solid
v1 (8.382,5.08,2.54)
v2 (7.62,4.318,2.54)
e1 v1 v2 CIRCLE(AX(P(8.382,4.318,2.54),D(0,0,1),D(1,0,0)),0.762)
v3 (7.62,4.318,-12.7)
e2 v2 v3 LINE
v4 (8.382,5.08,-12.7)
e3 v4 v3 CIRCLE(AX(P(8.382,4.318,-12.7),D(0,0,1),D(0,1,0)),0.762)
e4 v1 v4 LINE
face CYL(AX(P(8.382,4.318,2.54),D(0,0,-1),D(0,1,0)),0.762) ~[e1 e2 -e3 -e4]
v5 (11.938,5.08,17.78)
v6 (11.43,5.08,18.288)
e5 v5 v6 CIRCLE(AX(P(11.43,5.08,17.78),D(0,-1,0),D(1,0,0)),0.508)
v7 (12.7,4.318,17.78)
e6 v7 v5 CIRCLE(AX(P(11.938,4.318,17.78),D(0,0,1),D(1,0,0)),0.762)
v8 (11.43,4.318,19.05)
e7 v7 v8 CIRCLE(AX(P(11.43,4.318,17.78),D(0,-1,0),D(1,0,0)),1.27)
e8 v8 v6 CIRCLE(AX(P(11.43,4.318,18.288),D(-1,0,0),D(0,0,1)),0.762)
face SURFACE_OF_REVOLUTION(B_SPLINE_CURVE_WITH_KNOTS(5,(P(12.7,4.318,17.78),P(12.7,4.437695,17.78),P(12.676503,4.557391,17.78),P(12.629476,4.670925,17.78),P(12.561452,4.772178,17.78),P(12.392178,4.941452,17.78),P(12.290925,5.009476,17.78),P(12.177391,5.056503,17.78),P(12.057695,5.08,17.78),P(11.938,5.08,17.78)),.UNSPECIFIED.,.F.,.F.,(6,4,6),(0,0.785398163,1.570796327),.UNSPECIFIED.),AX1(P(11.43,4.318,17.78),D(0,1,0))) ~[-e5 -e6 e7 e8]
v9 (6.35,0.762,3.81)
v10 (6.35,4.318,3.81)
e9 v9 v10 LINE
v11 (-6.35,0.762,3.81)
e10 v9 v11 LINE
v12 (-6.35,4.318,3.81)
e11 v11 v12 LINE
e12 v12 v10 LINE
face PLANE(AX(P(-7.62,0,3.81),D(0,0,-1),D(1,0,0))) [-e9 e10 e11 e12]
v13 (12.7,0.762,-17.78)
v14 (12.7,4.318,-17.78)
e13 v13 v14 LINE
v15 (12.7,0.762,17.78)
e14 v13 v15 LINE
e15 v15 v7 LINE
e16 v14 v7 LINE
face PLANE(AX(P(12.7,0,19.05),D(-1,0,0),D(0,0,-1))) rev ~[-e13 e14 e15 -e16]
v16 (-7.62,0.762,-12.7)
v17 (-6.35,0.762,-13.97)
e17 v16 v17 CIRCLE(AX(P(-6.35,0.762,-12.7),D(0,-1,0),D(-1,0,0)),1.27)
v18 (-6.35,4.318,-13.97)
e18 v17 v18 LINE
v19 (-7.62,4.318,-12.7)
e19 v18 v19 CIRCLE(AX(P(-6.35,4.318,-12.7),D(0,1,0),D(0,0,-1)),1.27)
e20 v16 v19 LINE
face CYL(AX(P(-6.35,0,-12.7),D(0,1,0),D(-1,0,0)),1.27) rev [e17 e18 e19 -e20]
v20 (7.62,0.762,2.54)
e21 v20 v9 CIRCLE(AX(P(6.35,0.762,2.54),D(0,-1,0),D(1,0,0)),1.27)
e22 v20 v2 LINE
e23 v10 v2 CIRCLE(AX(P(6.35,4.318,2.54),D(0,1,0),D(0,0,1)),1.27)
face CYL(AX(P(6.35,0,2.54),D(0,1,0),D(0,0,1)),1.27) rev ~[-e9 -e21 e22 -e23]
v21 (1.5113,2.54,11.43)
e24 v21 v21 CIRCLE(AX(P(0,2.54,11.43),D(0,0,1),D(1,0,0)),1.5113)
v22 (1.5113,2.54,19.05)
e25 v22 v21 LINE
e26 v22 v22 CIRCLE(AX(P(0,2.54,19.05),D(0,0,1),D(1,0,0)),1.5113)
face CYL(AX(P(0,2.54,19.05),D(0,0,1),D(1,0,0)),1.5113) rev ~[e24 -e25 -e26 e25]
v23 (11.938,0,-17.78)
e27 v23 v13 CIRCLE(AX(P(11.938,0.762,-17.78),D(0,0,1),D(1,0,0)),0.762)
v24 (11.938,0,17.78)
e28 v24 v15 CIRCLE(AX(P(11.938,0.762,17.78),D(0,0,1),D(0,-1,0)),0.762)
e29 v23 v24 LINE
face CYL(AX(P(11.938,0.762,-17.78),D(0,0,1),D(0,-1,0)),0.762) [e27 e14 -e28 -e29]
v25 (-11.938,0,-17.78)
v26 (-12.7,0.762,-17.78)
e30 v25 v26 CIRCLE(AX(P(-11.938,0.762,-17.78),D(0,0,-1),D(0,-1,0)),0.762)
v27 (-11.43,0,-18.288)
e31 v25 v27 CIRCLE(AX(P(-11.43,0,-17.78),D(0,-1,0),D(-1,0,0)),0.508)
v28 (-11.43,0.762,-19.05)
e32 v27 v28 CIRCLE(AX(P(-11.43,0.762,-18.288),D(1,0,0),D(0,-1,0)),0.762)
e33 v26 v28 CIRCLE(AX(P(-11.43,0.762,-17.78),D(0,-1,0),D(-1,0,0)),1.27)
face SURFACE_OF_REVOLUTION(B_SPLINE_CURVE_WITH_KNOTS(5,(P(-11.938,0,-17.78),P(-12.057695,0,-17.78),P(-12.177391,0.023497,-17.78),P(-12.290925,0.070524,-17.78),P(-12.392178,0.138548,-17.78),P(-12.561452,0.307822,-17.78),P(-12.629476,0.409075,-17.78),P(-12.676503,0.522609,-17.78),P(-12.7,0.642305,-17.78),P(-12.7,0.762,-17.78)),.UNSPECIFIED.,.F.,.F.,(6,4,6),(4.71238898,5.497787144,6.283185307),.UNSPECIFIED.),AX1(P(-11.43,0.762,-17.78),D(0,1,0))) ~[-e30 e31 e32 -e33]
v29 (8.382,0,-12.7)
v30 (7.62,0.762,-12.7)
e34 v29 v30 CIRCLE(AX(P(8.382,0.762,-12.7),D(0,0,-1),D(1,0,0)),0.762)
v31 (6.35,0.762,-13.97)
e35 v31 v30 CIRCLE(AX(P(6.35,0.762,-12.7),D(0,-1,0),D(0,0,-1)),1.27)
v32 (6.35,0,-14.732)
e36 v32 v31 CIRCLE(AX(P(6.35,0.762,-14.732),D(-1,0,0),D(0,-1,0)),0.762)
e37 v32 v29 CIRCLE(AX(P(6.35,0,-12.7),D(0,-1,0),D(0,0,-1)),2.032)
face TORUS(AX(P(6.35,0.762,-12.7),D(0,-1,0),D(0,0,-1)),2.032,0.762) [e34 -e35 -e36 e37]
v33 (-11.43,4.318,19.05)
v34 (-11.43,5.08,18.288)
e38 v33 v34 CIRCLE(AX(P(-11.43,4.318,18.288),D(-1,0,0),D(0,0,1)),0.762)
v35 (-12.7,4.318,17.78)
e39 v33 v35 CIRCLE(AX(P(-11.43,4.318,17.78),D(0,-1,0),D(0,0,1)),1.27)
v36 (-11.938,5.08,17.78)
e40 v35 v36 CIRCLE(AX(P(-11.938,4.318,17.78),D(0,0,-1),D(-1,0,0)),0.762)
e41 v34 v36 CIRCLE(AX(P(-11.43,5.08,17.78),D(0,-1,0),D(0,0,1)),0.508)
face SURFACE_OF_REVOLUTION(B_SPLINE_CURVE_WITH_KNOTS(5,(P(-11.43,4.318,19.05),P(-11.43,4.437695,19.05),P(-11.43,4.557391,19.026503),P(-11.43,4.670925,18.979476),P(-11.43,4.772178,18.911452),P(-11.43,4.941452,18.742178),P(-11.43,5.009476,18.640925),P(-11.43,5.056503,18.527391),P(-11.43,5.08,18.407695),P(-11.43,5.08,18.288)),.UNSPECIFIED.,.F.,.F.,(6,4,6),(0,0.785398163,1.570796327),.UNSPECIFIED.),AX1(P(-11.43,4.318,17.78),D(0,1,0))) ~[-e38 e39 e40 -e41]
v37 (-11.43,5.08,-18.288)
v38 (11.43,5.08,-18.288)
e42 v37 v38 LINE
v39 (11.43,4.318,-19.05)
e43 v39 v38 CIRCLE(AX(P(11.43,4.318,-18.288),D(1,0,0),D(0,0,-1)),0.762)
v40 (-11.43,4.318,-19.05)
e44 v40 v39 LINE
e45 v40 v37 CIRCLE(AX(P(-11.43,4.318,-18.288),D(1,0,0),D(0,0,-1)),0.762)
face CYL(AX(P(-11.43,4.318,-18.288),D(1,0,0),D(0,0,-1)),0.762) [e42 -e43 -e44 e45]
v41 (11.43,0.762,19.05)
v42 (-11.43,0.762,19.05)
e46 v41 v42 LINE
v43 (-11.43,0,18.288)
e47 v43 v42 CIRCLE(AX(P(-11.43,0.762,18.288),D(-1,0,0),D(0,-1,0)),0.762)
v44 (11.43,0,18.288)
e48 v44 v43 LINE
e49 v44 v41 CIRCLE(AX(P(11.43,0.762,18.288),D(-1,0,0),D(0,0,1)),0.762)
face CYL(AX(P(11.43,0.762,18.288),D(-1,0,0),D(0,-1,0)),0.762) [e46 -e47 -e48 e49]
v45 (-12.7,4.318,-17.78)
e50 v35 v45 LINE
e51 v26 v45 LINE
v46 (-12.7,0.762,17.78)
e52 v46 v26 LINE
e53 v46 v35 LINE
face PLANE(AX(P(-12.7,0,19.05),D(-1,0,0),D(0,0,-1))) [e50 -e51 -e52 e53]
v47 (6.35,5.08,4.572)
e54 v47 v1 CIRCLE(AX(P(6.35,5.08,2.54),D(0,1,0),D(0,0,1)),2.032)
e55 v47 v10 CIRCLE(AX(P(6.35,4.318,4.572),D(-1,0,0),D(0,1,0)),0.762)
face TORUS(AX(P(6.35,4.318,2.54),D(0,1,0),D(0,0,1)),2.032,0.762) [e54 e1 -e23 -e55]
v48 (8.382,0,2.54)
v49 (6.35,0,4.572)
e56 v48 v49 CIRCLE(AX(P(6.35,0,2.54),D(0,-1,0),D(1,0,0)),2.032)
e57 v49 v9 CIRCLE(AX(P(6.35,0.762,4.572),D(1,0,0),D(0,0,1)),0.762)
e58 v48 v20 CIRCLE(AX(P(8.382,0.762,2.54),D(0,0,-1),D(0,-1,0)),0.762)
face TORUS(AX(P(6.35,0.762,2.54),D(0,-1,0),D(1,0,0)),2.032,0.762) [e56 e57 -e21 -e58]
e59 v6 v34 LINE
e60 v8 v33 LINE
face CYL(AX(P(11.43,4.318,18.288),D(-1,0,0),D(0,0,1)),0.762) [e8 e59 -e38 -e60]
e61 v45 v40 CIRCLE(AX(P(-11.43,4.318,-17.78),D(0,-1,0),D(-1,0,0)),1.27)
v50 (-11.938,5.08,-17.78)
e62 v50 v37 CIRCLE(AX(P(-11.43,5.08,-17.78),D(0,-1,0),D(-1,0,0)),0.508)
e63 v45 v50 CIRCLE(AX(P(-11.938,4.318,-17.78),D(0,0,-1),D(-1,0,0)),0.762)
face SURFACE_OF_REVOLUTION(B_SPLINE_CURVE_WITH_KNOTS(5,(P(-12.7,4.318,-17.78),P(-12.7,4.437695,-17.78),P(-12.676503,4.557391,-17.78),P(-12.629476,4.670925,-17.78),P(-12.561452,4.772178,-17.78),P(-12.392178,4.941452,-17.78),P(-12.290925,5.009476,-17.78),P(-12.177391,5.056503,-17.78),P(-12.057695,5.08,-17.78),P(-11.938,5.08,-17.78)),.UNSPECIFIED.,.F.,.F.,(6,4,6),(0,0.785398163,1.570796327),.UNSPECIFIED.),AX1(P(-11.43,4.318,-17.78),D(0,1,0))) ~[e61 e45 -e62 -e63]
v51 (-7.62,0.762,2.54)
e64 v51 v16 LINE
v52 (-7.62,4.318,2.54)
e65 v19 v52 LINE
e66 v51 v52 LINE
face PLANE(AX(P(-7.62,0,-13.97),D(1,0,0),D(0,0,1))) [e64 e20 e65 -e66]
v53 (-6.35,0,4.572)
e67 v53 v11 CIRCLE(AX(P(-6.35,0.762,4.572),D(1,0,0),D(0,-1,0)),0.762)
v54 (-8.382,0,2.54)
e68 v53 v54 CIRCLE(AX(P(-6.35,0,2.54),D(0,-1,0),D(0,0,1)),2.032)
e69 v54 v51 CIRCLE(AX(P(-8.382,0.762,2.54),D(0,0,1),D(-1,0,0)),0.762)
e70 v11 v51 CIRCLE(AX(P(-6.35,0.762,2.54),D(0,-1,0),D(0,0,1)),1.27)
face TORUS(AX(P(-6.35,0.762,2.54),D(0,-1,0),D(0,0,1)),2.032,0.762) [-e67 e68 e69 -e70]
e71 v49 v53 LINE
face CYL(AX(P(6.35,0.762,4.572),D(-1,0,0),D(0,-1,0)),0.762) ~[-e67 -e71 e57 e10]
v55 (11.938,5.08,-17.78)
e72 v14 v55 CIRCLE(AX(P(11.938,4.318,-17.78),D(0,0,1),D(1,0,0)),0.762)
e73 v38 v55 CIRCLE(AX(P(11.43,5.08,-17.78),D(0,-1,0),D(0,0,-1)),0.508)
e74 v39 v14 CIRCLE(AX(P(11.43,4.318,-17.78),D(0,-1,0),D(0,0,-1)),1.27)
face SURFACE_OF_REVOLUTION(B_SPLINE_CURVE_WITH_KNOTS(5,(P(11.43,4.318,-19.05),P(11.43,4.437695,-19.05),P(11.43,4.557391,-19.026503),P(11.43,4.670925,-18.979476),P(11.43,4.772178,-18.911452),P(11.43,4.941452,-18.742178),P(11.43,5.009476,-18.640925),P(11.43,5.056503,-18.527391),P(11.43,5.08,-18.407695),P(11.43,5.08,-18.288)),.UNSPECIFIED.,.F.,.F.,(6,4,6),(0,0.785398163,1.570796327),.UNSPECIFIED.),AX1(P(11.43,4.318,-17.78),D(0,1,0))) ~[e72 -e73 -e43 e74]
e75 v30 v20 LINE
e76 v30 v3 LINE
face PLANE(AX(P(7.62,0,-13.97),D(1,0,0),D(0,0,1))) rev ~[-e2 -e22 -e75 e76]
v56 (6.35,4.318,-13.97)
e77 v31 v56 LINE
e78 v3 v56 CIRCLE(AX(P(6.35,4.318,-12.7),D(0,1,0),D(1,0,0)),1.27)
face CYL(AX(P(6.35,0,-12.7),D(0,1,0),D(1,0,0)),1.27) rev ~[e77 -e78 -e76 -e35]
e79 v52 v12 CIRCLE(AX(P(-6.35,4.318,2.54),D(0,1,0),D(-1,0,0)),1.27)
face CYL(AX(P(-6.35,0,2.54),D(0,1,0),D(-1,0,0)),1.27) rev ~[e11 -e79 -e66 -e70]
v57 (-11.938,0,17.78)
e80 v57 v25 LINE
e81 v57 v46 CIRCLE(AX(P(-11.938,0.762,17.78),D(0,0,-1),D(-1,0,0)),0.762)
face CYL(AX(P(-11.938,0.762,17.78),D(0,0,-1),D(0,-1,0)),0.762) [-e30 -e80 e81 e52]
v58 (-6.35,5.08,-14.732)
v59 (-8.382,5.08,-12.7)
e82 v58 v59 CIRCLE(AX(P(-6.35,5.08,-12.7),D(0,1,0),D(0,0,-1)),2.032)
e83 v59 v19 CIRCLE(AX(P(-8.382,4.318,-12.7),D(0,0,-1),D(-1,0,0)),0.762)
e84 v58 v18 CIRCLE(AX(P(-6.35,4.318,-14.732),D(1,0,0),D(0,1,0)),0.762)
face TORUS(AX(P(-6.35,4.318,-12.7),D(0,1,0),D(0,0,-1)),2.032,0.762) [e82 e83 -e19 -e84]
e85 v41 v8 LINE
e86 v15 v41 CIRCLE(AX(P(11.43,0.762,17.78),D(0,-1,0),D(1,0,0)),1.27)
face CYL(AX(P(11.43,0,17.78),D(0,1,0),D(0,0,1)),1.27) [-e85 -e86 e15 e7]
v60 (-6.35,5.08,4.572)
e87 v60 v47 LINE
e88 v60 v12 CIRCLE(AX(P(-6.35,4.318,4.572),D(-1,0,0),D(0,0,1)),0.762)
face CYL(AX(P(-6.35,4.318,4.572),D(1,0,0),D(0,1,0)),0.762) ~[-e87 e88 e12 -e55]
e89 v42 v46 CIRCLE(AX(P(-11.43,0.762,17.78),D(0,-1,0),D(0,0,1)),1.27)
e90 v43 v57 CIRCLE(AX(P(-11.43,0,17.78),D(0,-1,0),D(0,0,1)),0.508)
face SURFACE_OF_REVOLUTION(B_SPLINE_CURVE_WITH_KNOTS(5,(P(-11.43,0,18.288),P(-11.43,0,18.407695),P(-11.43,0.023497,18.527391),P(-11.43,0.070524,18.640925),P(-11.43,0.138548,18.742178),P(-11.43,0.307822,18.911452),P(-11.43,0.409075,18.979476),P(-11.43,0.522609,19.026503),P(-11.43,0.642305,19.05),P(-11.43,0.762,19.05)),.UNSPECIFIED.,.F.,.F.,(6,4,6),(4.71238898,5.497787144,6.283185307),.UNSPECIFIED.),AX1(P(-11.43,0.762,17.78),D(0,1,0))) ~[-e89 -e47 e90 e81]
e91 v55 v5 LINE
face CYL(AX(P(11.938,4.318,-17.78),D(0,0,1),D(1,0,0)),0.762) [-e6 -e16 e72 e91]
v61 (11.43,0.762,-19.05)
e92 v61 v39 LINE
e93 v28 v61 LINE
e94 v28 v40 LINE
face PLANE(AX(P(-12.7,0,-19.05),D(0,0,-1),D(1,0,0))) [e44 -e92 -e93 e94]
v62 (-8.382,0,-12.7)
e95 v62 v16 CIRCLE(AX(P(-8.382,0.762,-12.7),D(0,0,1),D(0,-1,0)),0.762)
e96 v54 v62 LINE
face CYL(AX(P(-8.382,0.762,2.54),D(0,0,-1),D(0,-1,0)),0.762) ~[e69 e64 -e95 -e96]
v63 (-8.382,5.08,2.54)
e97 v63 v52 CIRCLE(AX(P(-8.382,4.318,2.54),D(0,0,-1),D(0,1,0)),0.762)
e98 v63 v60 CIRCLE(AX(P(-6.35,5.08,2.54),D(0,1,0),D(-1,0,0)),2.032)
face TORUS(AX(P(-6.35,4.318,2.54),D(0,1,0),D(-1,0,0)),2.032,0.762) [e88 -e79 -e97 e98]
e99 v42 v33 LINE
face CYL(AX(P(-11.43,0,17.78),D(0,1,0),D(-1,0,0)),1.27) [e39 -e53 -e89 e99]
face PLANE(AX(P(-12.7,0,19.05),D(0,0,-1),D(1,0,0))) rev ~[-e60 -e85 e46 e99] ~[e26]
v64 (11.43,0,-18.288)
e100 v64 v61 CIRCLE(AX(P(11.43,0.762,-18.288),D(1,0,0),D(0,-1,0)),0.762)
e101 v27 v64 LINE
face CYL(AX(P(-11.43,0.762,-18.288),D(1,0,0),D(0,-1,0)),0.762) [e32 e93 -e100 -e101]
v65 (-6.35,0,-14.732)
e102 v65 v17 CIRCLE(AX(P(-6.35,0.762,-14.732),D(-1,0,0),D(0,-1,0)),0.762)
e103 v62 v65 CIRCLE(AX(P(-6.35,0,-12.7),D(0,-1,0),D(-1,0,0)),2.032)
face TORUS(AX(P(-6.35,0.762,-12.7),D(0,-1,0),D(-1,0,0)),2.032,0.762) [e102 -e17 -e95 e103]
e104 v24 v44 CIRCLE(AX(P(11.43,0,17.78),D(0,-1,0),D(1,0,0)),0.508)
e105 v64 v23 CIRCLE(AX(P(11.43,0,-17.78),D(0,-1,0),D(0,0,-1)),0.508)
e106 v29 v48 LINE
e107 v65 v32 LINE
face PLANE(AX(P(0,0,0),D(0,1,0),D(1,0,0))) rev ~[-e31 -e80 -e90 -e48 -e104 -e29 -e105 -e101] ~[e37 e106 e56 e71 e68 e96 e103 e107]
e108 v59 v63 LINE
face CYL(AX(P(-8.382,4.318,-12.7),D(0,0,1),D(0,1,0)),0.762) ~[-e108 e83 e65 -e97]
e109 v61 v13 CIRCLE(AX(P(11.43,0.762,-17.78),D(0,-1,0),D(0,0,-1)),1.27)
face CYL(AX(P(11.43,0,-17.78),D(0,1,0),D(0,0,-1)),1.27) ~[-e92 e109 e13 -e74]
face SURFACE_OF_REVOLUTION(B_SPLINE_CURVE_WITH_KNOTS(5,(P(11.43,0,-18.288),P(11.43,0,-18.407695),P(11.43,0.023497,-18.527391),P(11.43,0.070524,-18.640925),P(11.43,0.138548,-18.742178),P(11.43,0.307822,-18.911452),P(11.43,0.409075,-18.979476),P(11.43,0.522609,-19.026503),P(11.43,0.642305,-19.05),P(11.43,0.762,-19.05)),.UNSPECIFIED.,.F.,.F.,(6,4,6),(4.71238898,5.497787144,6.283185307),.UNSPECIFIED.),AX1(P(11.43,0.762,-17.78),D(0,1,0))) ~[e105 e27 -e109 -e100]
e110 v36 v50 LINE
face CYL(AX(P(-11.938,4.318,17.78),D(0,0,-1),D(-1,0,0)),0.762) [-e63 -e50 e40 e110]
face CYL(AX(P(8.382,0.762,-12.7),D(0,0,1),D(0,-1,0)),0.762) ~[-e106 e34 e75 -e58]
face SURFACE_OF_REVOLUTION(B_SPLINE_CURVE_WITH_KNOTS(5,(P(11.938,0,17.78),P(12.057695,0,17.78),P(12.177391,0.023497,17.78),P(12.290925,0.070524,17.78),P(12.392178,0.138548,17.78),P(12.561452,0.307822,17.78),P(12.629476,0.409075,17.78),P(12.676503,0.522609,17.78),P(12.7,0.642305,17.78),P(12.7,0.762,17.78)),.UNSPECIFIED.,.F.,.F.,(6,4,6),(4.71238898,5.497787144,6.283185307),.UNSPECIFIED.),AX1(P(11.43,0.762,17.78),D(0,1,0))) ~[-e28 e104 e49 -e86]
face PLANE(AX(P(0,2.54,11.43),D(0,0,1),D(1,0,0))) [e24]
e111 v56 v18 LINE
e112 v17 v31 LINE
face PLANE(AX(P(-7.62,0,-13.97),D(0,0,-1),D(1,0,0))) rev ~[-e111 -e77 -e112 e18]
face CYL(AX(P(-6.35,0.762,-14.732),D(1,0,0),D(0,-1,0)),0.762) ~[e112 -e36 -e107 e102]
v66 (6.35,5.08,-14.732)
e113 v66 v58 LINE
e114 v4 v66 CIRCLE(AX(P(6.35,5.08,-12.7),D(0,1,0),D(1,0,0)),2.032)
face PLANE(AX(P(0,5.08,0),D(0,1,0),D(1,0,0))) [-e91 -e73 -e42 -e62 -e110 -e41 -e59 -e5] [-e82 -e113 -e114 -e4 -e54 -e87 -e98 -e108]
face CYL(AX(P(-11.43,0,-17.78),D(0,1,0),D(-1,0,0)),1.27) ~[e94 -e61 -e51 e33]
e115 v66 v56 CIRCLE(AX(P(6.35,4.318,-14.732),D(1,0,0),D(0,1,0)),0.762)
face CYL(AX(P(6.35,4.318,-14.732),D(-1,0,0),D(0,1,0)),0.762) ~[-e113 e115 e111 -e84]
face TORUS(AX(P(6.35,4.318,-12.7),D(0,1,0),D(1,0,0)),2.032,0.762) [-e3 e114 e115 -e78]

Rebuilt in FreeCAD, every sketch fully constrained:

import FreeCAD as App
import Part
import Sketcher

V = App.Vector
Q = App.Units.Quantity


def edges_at(feature, points):
    """Names of the edges that pass closest to the given points."""
    edges = feature.Shape.Edges
    near = lambda p: min(range(len(edges)), key=lambda i: edges[i].distToShape(Part.Vertex(*p))[0])
    return sorted({f"Edge{near(p) + 1}" for p in points})


def add_polygon(sketch, points):
    """Adds a closed chain of lines whose ends are joined by coincident constraints."""
    first, n = sketch.GeometryCount, len(points)
    for a, b in zip(points, points[1:] + points[:1]):
        sketch.addGeometry(Part.LineSegment(App.Vector(*a, 0), App.Vector(*b, 0)), False)
    for i in range(n):
        sketch.addConstraint(Sketcher.Constraint("Coincident", first + i, 2, first + (i + 1) % n, 1))

doc = App.newDocument("Part")
body = doc.addObject("PartDesign::Body", "Body")

# Sketch on XZ plane
sketch1 = doc.addObject("Sketcher::SketchObject", "Sketch")
body.addObject(sketch1)
sketch1.AttachmentSupport = (doc.XZ_Plane, [""])
sketch1.MapMode = "FlatFace"
add_polygon(sketch1, [(-13, -19), (-13, 19), (13, 19), (13, -19)])  # lines 0-3
sketch1.addConstraint([
    Sketcher.Constraint("Vertical", 0),
    Sketcher.Constraint("Horizontal", 1),
    Sketcher.Constraint("Vertical", 2),
    Sketcher.Constraint("Horizontal", 3),
    Sketcher.Constraint("Symmetric", 0, 2, 2, 2, -1, 1),
    Sketcher.Constraint("DistanceX", 1, 1, 1, 2, Q("1 in")),
    Sketcher.Constraint("DistanceY", 0, 1, 0, 2, Q("1.5 in")),
])
pad1 = doc.addObject("PartDesign::Pad", "Pad")
body.addObject(pad1)
pad1.Profile = sketch1
pad1.Length = Q("0.2 in")
pad1.Reversed = True

# Sketch on XZ plane
sketch2 = doc.addObject("Sketcher::SketchObject", "Sketch001")
body.addObject(sketch2)
sketch2.AttachmentSupport = (doc.XZ_Plane, [""])
sketch2.MapMode = "FlatFace"
add_polygon(sketch2, [(-8, 4), (-8, -14), (8, -14), (8, 4)])  # lines 0-3
sketch2.addConstraint([
    Sketcher.Constraint("Vertical", 0),
    Sketcher.Constraint("Horizontal", 1),
    Sketcher.Constraint("Vertical", 2),
    Sketcher.Constraint("Horizontal", 3),
    Sketcher.Constraint("DistanceX", 1, 1, 1, 2, Q("0.6 in")),
    Sketcher.Constraint("DistanceY", 0, 2, 0, 1, Q("0.7 in")),
    Sketcher.Constraint("DistanceX", 0, 2, -1, 1, Q("0.3 in")),
    Sketcher.Constraint("DistanceY", 0, 2, -1, 1, Q("0.55 in")),
])
pocket1 = doc.addObject("PartDesign::Pocket", "Pocket")
body.addObject(pocket1)
pocket1.Profile = sketch2
pocket1.Type = "ThroughAll"

# Sketch on XY plane
sketch3 = doc.addObject("Sketcher::SketchObject", "Sketch002")
body.addObject(sketch3)
sketch3.AttachmentSupport = (doc.XY_Plane, [""])
sketch3.MapMode = "FlatFace"
sketch3.AttachmentOffset = App.Placement(V(0, 0, 0.75 * 25.4), App.Rotation())
sketch3.addGeometry(Part.Circle(V(0, 2.5, 0), V(0, 0, 1), 1.5), False)
sketch3.addConstraint([
    Sketcher.Constraint("PointOnObject", 0, 3, -2),
    Sketcher.Constraint("Diameter", 0, Q("0.119 in")),
    Sketcher.Constraint("DistanceY", -1, 1, 0, 3, Q("0.1 in")),
])
pocket2 = doc.addObject("PartDesign::Pocket", "Pocket001")
body.addObject(pocket2)
pocket2.Profile = sketch3
pocket2.Length = Q("0.3 in")
doc.recompute()

fillet = doc.addObject("PartDesign::Fillet", "Fillet")
body.addObject(fillet)
fillet.Base = (pocket2, edges_at(pocket2, [
    (12.7, 2.54, 19.05),
    (-12.7, 2.54, 19.05),
    (-12.7, 2.54, -19.05),
    (12.7, 2.54, -19.05),
]))
fillet.Radius = Q("0.05 in")
doc.recompute()

fillet2 = doc.addObject("PartDesign::Fillet", "Fillet001")
body.addObject(fillet2)
fillet2.Base = (fillet, edges_at(fillet, [
    (7.62, 2.54, 3.81),
    (7.62, 2.54, -13.97),
    (-7.62, 2.54, -13.97),
    (-7.62, 2.54, 3.81),
]))
fillet2.Radius = Q("0.05 in")
doc.recompute()

fillet3 = doc.addObject("PartDesign::Fillet", "Fillet002")
body.addObject(fillet3)
fillet3.Base = (fillet2, edges_at(fillet2, [
    (0, 5.08, -19.05),
    (12.7, 5.08, 0),
    (-12.7, 5.08, 0),
    (0, 5.08, 19.05),
    (12.328, 5.08, 18.678),
    (-12.328, 5.08, 18.678),
    (-12.328, 5.08, -18.678),
    (12.328, 5.08, -18.678),
]))
fillet3.Radius = Q("0.03 in")
doc.recompute()

fillet4 = doc.addObject("PartDesign::Fillet", "Fillet003")
body.addObject(fillet4)
fillet4.Base = (fillet3, edges_at(fillet3, [
    (0, 0, -19.05),
    (12.7, 0, 0),
    (0, 0, 19.05),
    (-12.7, 0, 0),
    (12.328, 0, 18.678),
    (-12.328, 0, 18.678),
    (-12.328, 0, -18.678),
    (12.328, 0, -18.678),
    (0, 0, -13.97),
    (0, 5.08, -13.97),
    (-7.62, 0, -5.08),
    (-7.62, 5.08, -5.08),
    (7.62, 0, -5.08),
    (7.62, 5.08, -5.08),
    (0, 0, 3.81),
    (0, 5.08, 3.81),
    (-7.248, 0, -13.598),
    (-7.248, 5.08, -13.598),
    (7.248, 0, -13.598),
    (7.248, 5.08, -13.598),
    (-7.248, 0, 3.438),
    (-7.248, 5.08, 3.438),
    (7.248, 0, 3.438),
    (7.248, 5.08, 3.438),
]))
fillet4.Radius = Q("0.03 in")

doc.recompute()
